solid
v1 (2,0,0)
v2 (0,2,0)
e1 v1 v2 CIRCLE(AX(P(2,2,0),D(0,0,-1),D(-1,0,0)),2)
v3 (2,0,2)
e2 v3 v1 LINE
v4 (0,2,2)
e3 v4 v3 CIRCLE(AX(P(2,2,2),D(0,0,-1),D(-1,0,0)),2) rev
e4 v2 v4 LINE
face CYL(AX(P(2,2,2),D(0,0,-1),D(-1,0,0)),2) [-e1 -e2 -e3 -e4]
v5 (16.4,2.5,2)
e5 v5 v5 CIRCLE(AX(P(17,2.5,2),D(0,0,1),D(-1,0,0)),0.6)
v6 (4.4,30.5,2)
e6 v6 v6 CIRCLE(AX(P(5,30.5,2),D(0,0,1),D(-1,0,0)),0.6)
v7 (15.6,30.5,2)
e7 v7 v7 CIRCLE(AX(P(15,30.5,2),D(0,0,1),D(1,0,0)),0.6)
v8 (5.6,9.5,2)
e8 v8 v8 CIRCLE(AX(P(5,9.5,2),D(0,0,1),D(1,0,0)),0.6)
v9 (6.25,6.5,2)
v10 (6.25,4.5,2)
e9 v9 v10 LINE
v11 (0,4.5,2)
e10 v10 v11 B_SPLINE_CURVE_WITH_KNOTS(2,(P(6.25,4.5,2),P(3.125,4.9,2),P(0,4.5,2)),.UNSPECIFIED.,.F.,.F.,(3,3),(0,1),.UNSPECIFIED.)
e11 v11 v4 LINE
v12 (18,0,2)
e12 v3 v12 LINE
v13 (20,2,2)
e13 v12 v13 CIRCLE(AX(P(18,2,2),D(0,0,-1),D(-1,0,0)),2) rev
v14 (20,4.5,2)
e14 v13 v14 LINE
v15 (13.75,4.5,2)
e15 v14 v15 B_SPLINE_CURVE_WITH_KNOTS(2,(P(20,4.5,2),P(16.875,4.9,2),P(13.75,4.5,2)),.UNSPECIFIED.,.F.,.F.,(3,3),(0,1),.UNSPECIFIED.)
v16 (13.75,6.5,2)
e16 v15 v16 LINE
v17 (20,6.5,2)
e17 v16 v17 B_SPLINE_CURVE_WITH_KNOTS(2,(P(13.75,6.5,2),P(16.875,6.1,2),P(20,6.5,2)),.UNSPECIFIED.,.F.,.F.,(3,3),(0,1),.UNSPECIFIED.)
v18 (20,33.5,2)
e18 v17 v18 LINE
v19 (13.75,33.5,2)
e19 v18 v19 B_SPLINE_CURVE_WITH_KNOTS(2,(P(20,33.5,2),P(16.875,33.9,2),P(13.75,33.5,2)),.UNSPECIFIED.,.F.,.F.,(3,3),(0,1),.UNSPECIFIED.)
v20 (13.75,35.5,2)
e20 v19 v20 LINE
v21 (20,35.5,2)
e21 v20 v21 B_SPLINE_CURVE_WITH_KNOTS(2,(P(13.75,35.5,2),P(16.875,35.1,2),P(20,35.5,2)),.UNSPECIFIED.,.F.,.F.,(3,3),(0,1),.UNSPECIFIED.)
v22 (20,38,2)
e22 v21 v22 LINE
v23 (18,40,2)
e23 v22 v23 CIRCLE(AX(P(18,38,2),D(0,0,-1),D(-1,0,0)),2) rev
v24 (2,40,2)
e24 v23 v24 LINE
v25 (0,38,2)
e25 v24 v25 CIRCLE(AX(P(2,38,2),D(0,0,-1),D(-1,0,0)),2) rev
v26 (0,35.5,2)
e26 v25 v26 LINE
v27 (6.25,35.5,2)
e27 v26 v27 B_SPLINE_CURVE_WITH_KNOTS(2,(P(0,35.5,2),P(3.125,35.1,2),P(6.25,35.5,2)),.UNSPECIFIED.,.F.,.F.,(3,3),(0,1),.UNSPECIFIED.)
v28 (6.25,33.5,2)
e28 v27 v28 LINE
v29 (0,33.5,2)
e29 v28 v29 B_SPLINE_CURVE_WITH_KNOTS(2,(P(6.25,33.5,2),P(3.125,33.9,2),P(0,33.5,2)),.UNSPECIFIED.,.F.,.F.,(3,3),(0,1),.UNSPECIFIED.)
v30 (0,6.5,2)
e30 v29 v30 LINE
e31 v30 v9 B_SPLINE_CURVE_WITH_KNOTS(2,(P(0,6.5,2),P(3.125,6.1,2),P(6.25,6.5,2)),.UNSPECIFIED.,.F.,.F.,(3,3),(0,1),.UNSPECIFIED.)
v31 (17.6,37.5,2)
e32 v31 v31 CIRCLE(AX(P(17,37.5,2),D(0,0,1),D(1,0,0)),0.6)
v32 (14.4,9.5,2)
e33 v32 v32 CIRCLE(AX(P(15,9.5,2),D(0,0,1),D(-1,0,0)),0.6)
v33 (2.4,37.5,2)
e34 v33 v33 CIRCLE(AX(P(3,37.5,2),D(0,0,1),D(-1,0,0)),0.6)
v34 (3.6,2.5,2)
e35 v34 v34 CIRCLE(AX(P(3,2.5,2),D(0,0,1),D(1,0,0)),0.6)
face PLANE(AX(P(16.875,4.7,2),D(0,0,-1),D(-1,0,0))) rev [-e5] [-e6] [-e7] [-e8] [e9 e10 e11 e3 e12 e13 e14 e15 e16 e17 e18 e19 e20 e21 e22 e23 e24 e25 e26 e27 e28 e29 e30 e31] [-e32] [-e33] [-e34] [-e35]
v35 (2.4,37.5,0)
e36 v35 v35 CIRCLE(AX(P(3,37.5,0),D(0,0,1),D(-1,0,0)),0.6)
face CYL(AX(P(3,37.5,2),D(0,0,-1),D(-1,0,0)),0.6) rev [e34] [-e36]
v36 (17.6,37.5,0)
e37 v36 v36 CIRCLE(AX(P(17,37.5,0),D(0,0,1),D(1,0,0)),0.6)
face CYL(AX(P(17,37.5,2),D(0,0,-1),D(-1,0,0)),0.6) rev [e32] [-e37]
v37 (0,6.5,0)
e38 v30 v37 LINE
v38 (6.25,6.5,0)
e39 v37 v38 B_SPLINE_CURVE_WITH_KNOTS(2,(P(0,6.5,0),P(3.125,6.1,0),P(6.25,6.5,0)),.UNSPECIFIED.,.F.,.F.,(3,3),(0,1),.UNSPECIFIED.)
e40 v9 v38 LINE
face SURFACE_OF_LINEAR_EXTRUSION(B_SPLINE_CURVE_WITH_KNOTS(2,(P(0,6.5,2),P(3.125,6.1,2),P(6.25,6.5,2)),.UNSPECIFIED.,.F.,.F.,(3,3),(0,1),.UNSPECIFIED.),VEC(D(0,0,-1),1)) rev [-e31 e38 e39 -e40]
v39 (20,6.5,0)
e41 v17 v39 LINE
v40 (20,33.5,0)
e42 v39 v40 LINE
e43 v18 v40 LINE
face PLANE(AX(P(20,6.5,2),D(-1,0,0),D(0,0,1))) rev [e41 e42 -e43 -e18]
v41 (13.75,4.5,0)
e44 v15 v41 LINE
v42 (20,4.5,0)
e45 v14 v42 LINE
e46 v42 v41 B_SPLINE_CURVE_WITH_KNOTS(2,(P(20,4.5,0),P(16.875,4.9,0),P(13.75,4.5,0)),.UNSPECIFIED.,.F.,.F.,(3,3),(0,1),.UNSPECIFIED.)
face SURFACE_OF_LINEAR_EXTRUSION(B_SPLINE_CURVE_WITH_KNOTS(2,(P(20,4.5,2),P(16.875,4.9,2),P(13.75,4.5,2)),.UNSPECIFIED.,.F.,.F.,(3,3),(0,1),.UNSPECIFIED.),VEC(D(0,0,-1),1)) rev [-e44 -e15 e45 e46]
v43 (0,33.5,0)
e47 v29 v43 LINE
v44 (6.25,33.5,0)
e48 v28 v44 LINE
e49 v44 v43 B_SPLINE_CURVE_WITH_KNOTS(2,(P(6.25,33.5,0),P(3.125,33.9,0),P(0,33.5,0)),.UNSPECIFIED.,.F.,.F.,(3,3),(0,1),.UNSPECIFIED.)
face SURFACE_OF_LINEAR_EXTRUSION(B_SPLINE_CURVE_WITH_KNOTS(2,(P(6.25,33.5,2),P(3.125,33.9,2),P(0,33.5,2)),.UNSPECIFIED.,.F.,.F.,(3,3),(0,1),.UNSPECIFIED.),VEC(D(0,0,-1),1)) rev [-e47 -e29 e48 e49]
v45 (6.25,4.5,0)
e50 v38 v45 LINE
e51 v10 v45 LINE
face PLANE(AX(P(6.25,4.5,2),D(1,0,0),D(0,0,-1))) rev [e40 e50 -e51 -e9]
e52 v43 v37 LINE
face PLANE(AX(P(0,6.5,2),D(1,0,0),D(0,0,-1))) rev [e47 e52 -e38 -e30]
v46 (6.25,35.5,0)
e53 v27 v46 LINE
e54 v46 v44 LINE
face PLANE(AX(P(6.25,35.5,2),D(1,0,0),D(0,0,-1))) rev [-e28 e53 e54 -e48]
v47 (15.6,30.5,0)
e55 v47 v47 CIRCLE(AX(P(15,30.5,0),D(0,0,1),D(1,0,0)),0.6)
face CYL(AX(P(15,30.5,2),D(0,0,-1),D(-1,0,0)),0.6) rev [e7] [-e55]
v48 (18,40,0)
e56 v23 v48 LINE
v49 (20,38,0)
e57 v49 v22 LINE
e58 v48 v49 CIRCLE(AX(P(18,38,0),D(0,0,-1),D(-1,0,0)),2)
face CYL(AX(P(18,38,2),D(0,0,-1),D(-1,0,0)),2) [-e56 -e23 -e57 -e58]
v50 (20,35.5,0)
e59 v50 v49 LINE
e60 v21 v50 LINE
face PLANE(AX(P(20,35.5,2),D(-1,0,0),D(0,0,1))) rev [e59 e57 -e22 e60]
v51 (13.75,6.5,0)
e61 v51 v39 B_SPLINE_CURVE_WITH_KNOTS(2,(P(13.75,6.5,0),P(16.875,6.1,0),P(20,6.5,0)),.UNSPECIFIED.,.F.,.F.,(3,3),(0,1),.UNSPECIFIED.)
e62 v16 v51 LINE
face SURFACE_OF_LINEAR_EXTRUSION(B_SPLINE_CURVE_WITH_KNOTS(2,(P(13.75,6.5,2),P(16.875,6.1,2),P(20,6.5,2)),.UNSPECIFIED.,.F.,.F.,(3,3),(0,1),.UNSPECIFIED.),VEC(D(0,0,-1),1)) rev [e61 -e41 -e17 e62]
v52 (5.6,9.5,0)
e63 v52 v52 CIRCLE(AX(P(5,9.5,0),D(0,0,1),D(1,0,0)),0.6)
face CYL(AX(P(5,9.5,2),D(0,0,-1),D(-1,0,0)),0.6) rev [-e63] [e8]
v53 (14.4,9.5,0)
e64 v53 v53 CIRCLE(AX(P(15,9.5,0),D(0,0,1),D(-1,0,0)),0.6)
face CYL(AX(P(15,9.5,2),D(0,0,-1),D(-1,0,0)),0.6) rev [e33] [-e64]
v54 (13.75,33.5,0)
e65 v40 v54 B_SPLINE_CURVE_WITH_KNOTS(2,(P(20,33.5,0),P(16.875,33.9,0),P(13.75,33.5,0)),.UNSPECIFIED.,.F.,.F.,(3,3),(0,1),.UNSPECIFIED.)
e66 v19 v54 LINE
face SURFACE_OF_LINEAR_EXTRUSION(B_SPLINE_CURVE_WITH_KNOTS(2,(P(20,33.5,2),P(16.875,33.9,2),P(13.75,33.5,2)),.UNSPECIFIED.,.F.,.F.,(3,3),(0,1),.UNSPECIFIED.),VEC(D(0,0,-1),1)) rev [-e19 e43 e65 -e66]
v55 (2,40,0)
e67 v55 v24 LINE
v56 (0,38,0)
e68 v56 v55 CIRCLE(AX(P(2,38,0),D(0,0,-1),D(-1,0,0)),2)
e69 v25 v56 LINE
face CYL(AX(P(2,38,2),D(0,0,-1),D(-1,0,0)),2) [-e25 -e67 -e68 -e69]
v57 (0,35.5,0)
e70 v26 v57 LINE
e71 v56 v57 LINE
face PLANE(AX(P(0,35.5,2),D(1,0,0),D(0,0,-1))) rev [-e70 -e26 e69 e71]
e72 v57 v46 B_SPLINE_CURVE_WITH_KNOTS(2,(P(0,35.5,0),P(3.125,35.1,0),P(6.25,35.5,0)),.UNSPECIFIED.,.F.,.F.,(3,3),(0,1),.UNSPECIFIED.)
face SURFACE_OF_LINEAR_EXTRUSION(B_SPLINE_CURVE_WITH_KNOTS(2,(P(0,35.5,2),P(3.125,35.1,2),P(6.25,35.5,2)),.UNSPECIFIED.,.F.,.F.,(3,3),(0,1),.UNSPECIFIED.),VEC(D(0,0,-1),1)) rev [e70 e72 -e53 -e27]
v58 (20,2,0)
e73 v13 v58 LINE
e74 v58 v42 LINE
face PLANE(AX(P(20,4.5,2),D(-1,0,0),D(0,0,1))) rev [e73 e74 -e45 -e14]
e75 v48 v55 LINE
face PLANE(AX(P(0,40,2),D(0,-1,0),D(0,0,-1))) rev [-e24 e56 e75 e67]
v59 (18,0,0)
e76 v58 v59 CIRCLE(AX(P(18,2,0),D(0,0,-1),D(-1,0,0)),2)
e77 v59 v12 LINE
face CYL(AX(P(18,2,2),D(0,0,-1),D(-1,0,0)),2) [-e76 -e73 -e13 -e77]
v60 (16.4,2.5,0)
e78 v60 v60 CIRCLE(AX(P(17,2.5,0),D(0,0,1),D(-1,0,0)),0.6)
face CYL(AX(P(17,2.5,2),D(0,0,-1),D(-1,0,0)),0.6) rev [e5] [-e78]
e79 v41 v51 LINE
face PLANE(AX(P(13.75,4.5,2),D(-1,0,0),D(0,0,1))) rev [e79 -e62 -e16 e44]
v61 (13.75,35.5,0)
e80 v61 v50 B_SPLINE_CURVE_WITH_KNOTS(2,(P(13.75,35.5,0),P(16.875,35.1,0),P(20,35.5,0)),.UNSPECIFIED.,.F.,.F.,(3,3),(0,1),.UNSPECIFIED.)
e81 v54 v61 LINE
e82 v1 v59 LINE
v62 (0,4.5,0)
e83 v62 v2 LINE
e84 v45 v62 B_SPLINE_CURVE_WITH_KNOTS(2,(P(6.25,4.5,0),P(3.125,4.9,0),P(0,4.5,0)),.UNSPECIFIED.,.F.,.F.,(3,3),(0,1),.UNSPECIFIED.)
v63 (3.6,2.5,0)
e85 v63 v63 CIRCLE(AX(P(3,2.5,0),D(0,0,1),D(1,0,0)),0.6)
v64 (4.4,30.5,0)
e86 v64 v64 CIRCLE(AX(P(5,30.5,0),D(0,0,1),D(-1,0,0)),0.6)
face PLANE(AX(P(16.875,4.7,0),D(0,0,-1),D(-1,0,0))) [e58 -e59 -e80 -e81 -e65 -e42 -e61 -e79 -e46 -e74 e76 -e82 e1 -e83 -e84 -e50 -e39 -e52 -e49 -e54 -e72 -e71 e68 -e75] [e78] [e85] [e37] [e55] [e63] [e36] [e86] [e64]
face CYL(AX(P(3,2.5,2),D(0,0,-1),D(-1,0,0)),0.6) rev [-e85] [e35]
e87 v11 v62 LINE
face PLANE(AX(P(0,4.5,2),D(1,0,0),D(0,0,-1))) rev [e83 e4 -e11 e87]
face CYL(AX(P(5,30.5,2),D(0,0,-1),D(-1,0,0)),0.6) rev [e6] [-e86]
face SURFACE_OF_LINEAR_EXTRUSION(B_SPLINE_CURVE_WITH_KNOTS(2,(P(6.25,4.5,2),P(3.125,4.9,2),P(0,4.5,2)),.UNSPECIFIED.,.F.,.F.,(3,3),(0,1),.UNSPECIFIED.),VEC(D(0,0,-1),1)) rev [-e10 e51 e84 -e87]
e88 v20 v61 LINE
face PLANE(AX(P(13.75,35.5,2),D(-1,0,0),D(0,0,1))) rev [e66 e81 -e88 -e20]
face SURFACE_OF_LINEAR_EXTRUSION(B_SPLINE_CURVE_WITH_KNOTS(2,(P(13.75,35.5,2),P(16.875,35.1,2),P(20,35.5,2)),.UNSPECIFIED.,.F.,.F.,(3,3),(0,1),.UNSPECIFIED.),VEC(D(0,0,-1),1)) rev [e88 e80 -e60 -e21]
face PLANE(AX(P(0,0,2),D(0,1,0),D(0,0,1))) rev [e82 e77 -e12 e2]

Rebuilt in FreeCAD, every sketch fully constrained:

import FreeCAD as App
import Part
import Sketcher
Q = App.Units.Quantity


def edges_at(feature, points):
    """Names of the edges that pass closest to the given points."""
    edges = feature.Shape.Edges
    near = lambda p: min(range(len(edges)), key=lambda i: edges[i].distToShape(Part.Vertex(*p))[0])
    return sorted({f"Edge{near(p) + 1}" for p in points})

doc = App.newDocument("Part")
body = doc.addObject("PartDesign::Body", "Body")

# Sketch on XY plane
sketch1 = body.newObject("Sketcher::SketchObject", "Sketch")
sketch1.AttachmentSupport = (doc.getObject("XY_Plane"), [""])
sketch1.MapMode = "FlatFace"
sketch1.addGeometry([
    Part.LineSegment(App.Vector(0, 33.5, 0), App.Vector(0, 6.5, 0)),  # 0
    Part.BSplineCurve([App.Vector(0, 6.5, 0), App.Vector(3.125, 6.1, 0), App.Vector(6.25, 6.5, 0)], [3, 3], [0, 1], False, 2, [1, 1, 1], False),  # 1
    Part.LineSegment(App.Vector(6.25, 6.5, 0), App.Vector(6.25, 4.5, 0)),  # 2
    Part.BSplineCurve([App.Vector(0, 4.5, 0), App.Vector(3.125, 4.9, 0), App.Vector(6.25, 4.5, 0)], [3, 3], [0, 1], False, 2, [1, 1, 1], False),  # 3
    Part.LineSegment(App.Vector(0, 4.5, 0), App.Vector(0, 0, 0)),  # 4
    Part.LineSegment(App.Vector(0, 0, 0), App.Vector(20, 0, 0)),  # 5
    Part.LineSegment(App.Vector(20, 0, 0), App.Vector(20, 4.5, 0)),  # 6
    Part.BSplineCurve([App.Vector(20, 4.5, 0), App.Vector(16.875, 4.9, 0), App.Vector(13.75, 4.5, 0)], [3, 3], [0, 1], False, 2, [1, 1, 1], False),  # 7
    Part.LineSegment(App.Vector(13.75, 4.5, 0), App.Vector(13.75, 6.5, 0)),  # 8
    Part.BSplineCurve([App.Vector(20, 6.5, 0), App.Vector(16.875, 6.1, 0), App.Vector(13.75, 6.5, 0)], [3, 3], [0, 1], False, 2, [1, 1, 1], False),  # 9
    Part.LineSegment(App.Vector(20, 6.5, 0), App.Vector(20, 33.5, 0)),  # 10
    Part.BSplineCurve([App.Vector(20, 33.5, 0), App.Vector(16.875, 33.9, 0), App.Vector(13.75, 33.5, 0)], [3, 3], [0, 1], False, 2, [1, 1, 1], False),  # 11
    Part.LineSegment(App.Vector(13.75, 33.5, 0), App.Vector(13.75, 35.5, 0)),  # 12
    Part.BSplineCurve([App.Vector(20, 35.5, 0), App.Vector(16.875, 35.1, 0), App.Vector(13.75, 35.5, 0)], [3, 3], [0, 1], False, 2, [1, 1, 1], False),  # 13
    Part.LineSegment(App.Vector(20, 35.5, 0), App.Vector(20, 40, 0)),  # 14
    Part.LineSegment(App.Vector(20, 40, 0), App.Vector(0, 40, 0)),  # 15
    Part.LineSegment(App.Vector(0, 40, 0), App.Vector(0, 35.5, 0)),  # 16
    Part.BSplineCurve([App.Vector(0, 35.5, 0), App.Vector(3.125, 35.1, 0), App.Vector(6.25, 35.5, 0)], [3, 3], [0, 1], False, 2, [1, 1, 1], False),  # 17
    Part.LineSegment(App.Vector(6.25, 35.5, 0), App.Vector(6.25, 33.5, 0)),  # 18
    Part.BSplineCurve([App.Vector(0, 33.5, 0), App.Vector(3.125, 33.9, 0), App.Vector(6.25, 33.5, 0)], [3, 3], [0, 1], False, 2, [1, 1, 1], False),  # 19
    Part.Circle(App.Vector(17, 2.5, 0), App.Vector(0, 0, 1), 0.6),  # 20
    Part.Circle(App.Vector(15, 9.5, 0), App.Vector(0, 0, 1), 0.6),  # 21
    Part.Circle(App.Vector(3, 2.5, 0), App.Vector(0, 0, 1), 0.6),  # 22
    Part.Circle(App.Vector(5, 9.5, 0), App.Vector(0, 0, 1), 0.6),  # 23
    Part.Circle(App.Vector(15, 30.5, 0), App.Vector(0, 0, 1), 0.6),  # 24
    Part.Circle(App.Vector(17, 37.5, 0), App.Vector(0, 0, 1), 0.6),  # 25
    Part.Circle(App.Vector(5, 30.5, 0), App.Vector(0, 0, 1), 0.6),  # 26
    Part.Circle(App.Vector(3, 37.5, 0), App.Vector(0, 0, 1), 0.6),  # 27
], False)
sketch1.addConstraint([
    Sketcher.Constraint("Block", 1),
    Sketcher.Constraint("Block", 3),
    Sketcher.Constraint("Block", 7),
    Sketcher.Constraint("Block", 9),
    Sketcher.Constraint("Block", 11),
    Sketcher.Constraint("Block", 13),
    Sketcher.Constraint("Block", 17),
    Sketcher.Constraint("Block", 19),
    Sketcher.Constraint("Coincident", 0, 2, 1, 1),
    Sketcher.Constraint("Coincident", 1, 2, 2, 1),
    Sketcher.Constraint("Coincident", 2, 2, 3, 2),
    Sketcher.Constraint("Coincident", 3, 1, 4, 1),
    Sketcher.Constraint("Coincident", 4, 2, 5, 1),
    Sketcher.Constraint("Coincident", 5, 2, 6, 1),
    Sketcher.Constraint("Coincident", 6, 2, 7, 1),
    Sketcher.Constraint("Coincident", 7, 2, 8, 1),
    Sketcher.Constraint("Coincident", 8, 2, 9, 2),
    Sketcher.Constraint("Coincident", 9, 1, 10, 1),
    Sketcher.Constraint("Coincident", 10, 2, 11, 1),
    Sketcher.Constraint("Coincident", 11, 2, 12, 1),
    Sketcher.Constraint("Coincident", 12, 2, 13, 2),
    Sketcher.Constraint("Coincident", 13, 1, 14, 1),
    Sketcher.Constraint("Coincident", 14, 2, 15, 1),
    Sketcher.Constraint("Coincident", 15, 2, 16, 1),
    Sketcher.Constraint("Coincident", 16, 2, 17, 1),
    Sketcher.Constraint("Coincident", 17, 2, 18, 1),
    Sketcher.Constraint("Coincident", 18, 2, 19, 2),
    Sketcher.Constraint("Coincident", 19, 1, 0, 1),
    Sketcher.Constraint("Vertical", 4),
    Sketcher.Constraint("Horizontal", 5),
    Sketcher.Constraint("Vertical", 6),
    Sketcher.Constraint("Vertical", 14),
    Sketcher.Constraint("Horizontal", 15),
    Sketcher.Constraint("Vertical", 16),
    Sketcher.Constraint("Equal", 20, 21),
    Sketcher.Constraint("Equal", 21, 22),
    Sketcher.Constraint("Equal", 22, 23),
    Sketcher.Constraint("Equal", 23, 24),
    Sketcher.Constraint("Equal", 24, 25),
    Sketcher.Constraint("Equal", 25, 26),
    Sketcher.Constraint("Equal", 26, 27),
    Sketcher.Constraint("PointOnObject", 5, 2, -1),
    Sketcher.Constraint("Horizontal", 20, 3, 22, 3),
    Sketcher.Constraint("Horizontal", 21, 3, 23, 3),
    Sketcher.Constraint("Horizontal", 24, 3, 26, 3),
    Sketcher.Constraint("Horizontal", 25, 3, 27, 3),
    Sketcher.Constraint("Vertical", 21, 3, 24, 3),
    Sketcher.Constraint("Vertical", 20, 3, 25, 3),
    Sketcher.Constraint("Vertical", 23, 3, 26, 3),
    Sketcher.Constraint("Vertical", 22, 3, 27, 3),
    Sketcher.Constraint("Equal", 6, 14),
    Sketcher.Constraint("Diameter", 20, Q("1.2 mm")),
    Sketcher.Constraint("DistanceX", -1, 1, 20, 3, Q("17 mm")),
    Sketcher.Constraint("DistanceX", -1, 1, 21, 3, Q("15 mm")),
    Sketcher.Constraint("DistanceX", -1, 1, 22, 3, Q("3 mm")),
    Sketcher.Constraint("DistanceX", -1, 1, 23, 3, Q("5 mm")),
    Sketcher.Constraint("DistanceY", 20, 3, 21, 3, Q("7 mm")),
    Sketcher.Constraint("DistanceY", 21, 3, 24, 3, Q("21 mm")),
    Sketcher.Constraint("DistanceY", 24, 3, 25, 3, Q("7 mm")),
    Sketcher.Constraint("DistanceY", 22, 3, 0, 2, Q("4 mm")),
])
pad1 = body.newObject("PartDesign::Pad", "Pad")
pad1.Profile = sketch1
pad1.Length = 2
doc.recompute()

fillet = body.newObject("PartDesign::Fillet", "Fillet")
fillet.Base = (pad1, edges_at(pad1, [
    (0, 40, 1),
    (20, 40, 1),
    (20, 0, 1),
    (0, 0, 1),
]))
fillet.Radius = 2

doc.recompute()
